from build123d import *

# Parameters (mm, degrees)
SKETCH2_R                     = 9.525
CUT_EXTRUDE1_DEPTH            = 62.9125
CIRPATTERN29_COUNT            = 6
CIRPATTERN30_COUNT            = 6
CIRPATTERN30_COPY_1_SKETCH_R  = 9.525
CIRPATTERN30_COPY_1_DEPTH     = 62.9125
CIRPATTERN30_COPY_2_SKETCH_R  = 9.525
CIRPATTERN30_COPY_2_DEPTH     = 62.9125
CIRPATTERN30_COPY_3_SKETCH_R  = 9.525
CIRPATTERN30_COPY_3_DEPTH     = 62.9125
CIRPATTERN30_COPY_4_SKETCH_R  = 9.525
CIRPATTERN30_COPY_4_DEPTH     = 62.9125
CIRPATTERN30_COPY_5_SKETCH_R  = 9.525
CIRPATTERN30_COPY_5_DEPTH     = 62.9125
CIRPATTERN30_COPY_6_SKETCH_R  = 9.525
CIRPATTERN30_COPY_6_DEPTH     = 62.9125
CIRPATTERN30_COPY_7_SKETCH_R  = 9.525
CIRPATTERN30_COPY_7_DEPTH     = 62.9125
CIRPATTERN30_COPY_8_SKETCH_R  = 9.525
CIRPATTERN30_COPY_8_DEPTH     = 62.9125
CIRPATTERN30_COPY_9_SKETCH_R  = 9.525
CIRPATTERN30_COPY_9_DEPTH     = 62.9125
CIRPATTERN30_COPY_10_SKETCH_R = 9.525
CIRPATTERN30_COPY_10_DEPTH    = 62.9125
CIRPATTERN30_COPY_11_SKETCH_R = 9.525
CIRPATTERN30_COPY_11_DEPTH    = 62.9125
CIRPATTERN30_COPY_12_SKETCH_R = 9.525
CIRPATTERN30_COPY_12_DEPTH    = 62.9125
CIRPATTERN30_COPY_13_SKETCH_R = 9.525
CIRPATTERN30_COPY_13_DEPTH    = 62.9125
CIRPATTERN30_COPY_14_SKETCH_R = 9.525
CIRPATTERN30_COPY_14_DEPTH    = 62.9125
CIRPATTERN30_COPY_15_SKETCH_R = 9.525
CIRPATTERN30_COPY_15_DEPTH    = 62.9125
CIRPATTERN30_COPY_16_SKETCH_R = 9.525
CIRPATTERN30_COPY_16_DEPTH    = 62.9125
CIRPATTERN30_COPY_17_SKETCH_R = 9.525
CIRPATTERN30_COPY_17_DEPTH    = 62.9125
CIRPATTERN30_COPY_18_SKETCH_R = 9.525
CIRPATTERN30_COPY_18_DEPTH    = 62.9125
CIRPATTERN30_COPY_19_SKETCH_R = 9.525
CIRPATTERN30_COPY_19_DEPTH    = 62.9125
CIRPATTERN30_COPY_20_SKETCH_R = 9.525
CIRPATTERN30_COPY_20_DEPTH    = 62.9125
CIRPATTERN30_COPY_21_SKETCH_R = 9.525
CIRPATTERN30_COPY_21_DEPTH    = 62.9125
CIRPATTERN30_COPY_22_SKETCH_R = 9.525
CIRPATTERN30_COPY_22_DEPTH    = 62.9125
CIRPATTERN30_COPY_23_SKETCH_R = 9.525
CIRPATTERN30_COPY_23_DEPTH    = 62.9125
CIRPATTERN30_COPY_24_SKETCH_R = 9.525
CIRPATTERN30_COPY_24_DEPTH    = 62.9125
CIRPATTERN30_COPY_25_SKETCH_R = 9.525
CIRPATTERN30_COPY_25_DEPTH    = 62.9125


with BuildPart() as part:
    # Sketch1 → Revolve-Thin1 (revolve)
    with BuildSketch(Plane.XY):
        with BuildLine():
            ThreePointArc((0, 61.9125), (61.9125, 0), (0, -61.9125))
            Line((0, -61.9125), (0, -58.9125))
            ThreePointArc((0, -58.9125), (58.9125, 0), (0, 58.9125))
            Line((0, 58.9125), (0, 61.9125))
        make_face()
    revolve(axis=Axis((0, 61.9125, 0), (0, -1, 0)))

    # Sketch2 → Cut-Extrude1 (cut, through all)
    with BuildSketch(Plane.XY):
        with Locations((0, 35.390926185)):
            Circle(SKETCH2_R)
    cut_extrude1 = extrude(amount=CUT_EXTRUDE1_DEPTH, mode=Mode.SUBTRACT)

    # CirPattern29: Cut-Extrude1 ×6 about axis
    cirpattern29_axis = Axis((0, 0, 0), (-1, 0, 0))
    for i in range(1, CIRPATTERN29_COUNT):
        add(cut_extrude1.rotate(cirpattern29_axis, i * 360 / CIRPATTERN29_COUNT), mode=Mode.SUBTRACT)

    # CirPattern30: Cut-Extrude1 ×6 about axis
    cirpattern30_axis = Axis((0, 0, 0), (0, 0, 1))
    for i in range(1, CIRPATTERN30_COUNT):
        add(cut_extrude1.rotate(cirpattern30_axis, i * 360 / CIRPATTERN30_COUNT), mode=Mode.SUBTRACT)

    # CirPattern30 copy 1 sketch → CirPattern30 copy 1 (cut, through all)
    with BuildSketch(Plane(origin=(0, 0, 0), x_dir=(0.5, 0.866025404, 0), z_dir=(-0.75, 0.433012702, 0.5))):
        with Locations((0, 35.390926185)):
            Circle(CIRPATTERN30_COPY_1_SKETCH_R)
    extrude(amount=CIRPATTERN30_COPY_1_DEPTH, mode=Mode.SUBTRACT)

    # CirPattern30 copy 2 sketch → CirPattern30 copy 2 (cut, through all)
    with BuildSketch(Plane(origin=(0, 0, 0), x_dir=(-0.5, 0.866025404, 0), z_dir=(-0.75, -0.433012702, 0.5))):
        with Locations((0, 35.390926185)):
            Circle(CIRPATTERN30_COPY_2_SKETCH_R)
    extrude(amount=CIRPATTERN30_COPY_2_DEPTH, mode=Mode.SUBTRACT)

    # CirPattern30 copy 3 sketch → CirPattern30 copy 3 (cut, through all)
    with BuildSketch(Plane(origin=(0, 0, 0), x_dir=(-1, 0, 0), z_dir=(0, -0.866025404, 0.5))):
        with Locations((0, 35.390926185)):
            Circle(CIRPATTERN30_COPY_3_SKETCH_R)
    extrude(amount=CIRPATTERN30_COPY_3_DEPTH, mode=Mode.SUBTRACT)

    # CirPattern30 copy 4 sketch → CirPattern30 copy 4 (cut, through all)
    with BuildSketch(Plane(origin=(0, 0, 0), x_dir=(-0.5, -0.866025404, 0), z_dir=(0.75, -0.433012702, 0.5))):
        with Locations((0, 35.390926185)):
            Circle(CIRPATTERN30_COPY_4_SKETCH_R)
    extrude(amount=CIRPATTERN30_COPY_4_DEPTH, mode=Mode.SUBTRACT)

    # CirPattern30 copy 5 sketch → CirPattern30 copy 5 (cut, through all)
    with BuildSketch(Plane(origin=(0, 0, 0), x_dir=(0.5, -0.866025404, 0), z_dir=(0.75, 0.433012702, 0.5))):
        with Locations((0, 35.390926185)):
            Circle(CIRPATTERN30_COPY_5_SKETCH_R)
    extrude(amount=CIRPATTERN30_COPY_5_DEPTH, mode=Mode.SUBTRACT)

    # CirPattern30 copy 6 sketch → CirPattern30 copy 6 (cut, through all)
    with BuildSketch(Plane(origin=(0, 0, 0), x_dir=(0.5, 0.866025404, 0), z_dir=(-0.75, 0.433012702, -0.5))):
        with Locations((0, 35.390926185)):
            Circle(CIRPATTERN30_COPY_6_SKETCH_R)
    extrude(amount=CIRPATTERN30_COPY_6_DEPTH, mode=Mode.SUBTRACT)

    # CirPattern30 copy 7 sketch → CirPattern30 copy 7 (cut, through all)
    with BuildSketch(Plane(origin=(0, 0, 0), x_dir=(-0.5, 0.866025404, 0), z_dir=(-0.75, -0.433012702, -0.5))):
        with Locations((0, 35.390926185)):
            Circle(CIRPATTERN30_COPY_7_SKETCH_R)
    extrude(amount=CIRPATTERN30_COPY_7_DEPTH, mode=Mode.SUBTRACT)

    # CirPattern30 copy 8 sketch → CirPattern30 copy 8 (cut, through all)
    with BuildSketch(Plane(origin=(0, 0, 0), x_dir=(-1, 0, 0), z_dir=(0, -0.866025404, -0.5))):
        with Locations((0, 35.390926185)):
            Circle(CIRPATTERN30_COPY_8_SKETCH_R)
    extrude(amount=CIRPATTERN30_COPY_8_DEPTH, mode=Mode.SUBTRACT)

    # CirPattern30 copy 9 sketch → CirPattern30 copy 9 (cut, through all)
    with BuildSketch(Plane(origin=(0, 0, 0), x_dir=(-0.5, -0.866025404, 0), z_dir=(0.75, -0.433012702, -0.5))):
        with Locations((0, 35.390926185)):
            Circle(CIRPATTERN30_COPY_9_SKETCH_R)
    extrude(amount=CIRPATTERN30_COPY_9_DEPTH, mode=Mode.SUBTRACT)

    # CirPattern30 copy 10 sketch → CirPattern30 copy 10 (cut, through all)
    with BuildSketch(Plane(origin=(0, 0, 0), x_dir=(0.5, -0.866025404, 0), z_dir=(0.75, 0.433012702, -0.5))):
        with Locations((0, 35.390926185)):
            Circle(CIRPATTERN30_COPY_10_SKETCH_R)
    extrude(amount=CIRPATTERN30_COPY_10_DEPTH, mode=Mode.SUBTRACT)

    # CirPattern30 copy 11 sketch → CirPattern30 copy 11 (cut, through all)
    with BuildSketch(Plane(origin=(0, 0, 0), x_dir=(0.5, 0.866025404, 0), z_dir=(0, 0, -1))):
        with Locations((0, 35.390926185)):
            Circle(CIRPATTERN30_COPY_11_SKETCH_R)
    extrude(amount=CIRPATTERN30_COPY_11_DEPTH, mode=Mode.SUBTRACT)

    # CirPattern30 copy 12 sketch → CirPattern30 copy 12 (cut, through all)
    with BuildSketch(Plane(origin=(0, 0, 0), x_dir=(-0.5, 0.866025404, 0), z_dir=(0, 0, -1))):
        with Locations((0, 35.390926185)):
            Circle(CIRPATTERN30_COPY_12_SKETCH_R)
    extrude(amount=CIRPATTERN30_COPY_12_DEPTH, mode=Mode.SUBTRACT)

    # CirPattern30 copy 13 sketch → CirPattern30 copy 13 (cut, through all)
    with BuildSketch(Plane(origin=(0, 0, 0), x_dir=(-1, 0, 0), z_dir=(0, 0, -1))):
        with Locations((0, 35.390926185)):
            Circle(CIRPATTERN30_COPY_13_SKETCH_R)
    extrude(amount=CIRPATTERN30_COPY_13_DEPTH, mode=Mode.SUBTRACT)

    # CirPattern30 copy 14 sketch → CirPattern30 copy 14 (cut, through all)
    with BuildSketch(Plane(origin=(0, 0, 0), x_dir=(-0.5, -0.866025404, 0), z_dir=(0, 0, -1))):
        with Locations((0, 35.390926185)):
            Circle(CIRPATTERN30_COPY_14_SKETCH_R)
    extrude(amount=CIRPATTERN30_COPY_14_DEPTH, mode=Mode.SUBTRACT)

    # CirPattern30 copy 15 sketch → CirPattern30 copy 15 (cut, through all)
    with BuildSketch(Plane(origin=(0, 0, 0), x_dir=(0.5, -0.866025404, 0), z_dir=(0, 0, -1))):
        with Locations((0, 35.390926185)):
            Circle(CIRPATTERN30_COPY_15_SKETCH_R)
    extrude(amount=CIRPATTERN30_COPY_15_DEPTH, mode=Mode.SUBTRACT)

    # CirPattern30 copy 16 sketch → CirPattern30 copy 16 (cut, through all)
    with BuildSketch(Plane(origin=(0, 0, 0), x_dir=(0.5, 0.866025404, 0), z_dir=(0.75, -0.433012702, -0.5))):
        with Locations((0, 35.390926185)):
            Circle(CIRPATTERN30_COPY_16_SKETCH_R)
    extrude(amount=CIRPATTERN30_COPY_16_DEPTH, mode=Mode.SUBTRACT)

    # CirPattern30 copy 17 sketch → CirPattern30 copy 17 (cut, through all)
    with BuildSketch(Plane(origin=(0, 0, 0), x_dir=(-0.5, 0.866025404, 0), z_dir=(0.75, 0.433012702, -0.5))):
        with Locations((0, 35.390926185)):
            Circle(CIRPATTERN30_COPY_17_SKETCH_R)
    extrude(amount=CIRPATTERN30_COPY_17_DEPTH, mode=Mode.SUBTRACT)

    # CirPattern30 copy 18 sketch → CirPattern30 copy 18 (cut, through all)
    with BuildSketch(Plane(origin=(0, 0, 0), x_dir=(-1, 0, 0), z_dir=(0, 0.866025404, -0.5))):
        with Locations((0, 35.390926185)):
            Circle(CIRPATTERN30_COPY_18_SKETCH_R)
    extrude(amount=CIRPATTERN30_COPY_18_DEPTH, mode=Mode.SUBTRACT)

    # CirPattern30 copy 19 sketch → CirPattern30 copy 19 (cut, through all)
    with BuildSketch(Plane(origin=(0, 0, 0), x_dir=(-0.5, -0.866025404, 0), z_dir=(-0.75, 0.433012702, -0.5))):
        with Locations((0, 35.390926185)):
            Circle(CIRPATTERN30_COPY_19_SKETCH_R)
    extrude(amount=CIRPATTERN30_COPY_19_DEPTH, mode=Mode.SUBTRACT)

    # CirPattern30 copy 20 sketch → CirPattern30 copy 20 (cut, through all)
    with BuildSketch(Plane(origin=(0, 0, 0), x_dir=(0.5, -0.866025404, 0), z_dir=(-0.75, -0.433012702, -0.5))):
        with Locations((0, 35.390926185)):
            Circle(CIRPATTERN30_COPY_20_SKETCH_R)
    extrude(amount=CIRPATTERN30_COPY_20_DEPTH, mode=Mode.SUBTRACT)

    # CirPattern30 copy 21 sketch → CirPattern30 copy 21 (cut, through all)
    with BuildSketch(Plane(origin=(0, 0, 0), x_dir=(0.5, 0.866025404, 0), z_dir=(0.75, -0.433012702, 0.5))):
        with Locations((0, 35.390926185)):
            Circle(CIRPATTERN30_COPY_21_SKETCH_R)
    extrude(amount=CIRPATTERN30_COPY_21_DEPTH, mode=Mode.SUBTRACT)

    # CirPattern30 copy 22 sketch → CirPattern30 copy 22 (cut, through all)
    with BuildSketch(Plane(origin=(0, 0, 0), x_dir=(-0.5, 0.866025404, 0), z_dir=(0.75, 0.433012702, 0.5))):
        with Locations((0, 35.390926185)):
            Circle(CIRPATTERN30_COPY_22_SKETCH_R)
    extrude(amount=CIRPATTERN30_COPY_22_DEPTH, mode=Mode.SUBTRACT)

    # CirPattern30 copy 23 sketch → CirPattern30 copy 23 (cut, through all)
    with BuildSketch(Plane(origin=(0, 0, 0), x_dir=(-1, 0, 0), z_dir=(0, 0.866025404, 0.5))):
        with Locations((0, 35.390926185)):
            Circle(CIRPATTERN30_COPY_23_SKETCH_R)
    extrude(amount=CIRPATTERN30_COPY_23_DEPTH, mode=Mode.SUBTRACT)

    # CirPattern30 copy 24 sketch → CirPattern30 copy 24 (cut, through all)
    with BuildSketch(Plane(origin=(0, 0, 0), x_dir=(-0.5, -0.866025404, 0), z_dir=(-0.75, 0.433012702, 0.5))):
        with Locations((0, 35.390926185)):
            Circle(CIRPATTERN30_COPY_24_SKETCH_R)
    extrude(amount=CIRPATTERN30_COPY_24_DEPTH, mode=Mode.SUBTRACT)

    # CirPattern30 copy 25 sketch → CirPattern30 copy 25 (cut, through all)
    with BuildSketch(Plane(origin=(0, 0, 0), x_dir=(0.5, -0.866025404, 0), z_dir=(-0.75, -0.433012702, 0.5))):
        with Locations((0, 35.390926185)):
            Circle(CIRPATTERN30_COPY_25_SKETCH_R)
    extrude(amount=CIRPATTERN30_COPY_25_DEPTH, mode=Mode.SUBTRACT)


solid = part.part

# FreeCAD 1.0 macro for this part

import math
import FreeCAD as App
import Part
import Sketcher
Q = App.Units.Quantity

doc = App.newDocument("Part")
body = doc.addObject("PartDesign::Body", "Body")

# Sketch on XY plane
sketch1 = body.newObject("Sketcher::SketchObject", "Sketch")
sketch1.AttachmentSupport = (doc.getObject("XY_Plane"), [""])
sketch1.MapMode = "FlatFace"
sketch1.addGeometry([
    Part.ArcOfCircle(Part.Circle(App.Vector(0, 0, 0), App.Vector(0, 0, 1), 61.9125), math.radians(-90), math.radians(90)),
    Part.LineSegment(App.Vector(0, 61.9125, 0), App.Vector(0, 58.9125, 0)),
    Part.ArcOfCircle(Part.Circle(App.Vector(0, 0, 0), App.Vector(0, 0, 1), 58.9125), math.radians(-90), math.radians(90)),
    Part.LineSegment(App.Vector(0, -58.9125, 0), App.Vector(0, -61.9125, 0)),
], False)
sketch1.addConstraint([
    Sketcher.Constraint("Coincident", 0, 2, 1, 1),
    Sketcher.Constraint("Coincident", 1, 2, 2, 2),
    Sketcher.Constraint("Coincident", 2, 1, 3, 1),
    Sketcher.Constraint("Coincident", 3, 2, 0, 1),
    Sketcher.Constraint("Vertical", 1),
    Sketcher.Constraint("Vertical", 3),
    Sketcher.Constraint("Coincident", 0, 3, -1, 1),
    Sketcher.Constraint("Coincident", 2, 3, -1, 1),
    Sketcher.Constraint("PointOnObject", 0, 2, -2),
    Sketcher.Constraint("PointOnObject", 2, 1, -2),
    Sketcher.Constraint("Radius", 0, Q("2.4375 in")),
    Sketcher.Constraint("Radius", 2, Q("58.9125 mm")),
])
revolution = body.newObject("PartDesign::Revolution", "Revolution")
revolution.Profile = sketch1
revolution.ReferenceAxis = (sketch1, ["V_Axis"])
revolution.Angle = 360

# Sketch on XY plane
sketch2 = body.newObject("Sketcher::SketchObject", "Sketch001")
sketch2.AttachmentSupport = (doc.getObject("XY_Plane"), [""])
sketch2.MapMode = "FlatFace"
sketch2.addGeometry(Part.Circle(App.Vector(0, 35.390926, 0), App.Vector(0, 0, 1), 9.525), False)
sketch2.addConstraint([
    Sketcher.Constraint("PointOnObject", 0, 3, -2),
    Sketcher.Constraint("Diameter", 0, Q("0.75 in")),
    Sketcher.Constraint("DistanceY", -1, 1, 0, 3, Q("35.390926 mm")),
])
pocket1 = body.newObject("PartDesign::Pocket", "Pocket")
pocket1.Profile = sketch2
pocket1.Type = "ThroughAll"
pocket1.Reversed = True
doc.recompute()

polarpattern = body.newObject("PartDesign::PolarPattern", "PolarPattern")
polarpattern.Originals = [pocket1]
polarpattern.Axis = (doc.getObject("X_Axis"), [""])
polarpattern.Angle = 360
polarpattern.Occurrences = 6
body.Tip = polarpattern
doc.recompute()

polarpattern2 = body.newObject("PartDesign::PolarPattern", "PolarPattern001")
polarpattern2.Originals = [pocket1]
polarpattern2.Axis = (doc.getObject("Z_Axis"), [""])
polarpattern2.Angle = 360
polarpattern2.Occurrences = 6
body.Tip = polarpattern2

# Sketch on an angled plane
sketch3 = body.newObject("Sketcher::SketchObject", "Sketch002")
sketch3.Placement = App.Placement(App.Vector(0, 0, 0), App.Rotation(App.Vector(0.5, 0.866025404, 0), App.Vector(-0.433012702, 0.25, -0.866025404), App.Vector(-0.75, 0.433012702, 0.5), "ZXY"))
sketch3.addGeometry(Part.Circle(App.Vector(0, 35.390926, 0), App.Vector(0, 0, 1), 9.525), False)
sketch3.addConstraint([
    Sketcher.Constraint("PointOnObject", 0, 3, -2),
    Sketcher.Constraint("Diameter", 0, Q("0.75 in")),
    Sketcher.Constraint("DistanceY", -1, 1, 0, 3, Q("35.390926 mm")),
])
pocket2 = body.newObject("PartDesign::Pocket", "Pocket001")
pocket2.Profile = sketch3
pocket2.Type = "ThroughAll"
pocket2.Reversed = True

# Sketch on an angled plane
sketch4 = body.newObject("Sketcher::SketchObject", "Sketch003")
sketch4.Placement = App.Placement(App.Vector(0, 0, 0), App.Rotation(App.Vector(-0.5, 0.866025404, 0), App.Vector(-0.433012702, -0.25, -0.866025404), App.Vector(-0.75, -0.433012702, 0.5), "ZXY"))
sketch4.addGeometry(Part.Circle(App.Vector(0, 35.390926, 0), App.Vector(0, 0, 1), 9.525), False)
sketch4.addConstraint([
    Sketcher.Constraint("PointOnObject", 0, 3, -2),
    Sketcher.Constraint("Diameter", 0, Q("0.75 in")),
    Sketcher.Constraint("DistanceY", -1, 1, 0, 3, Q("35.390926 mm")),
])
pocket3 = body.newObject("PartDesign::Pocket", "Pocket002")
pocket3.Profile = sketch4
pocket3.Type = "ThroughAll"
pocket3.Reversed = True

# Sketch on an angled plane
sketch5 = body.newObject("Sketcher::SketchObject", "Sketch004")
sketch5.Placement = App.Placement(App.Vector(0, 0, 0), App.Rotation(App.Vector(-1, 0, 0), App.Vector(0, -0.5, -0.866025404), App.Vector(0, -0.866025404, 0.5), "ZXY"))
sketch5.addGeometry(Part.Circle(App.Vector(0, 35.390926, 0), App.Vector(0, 0, 1), 9.525), False)
sketch5.addConstraint([
    Sketcher.Constraint("PointOnObject", 0, 3, -2),
    Sketcher.Constraint("Diameter", 0, Q("0.75 in")),
    Sketcher.Constraint("DistanceY", -1, 1, 0, 3, Q("35.390926 mm")),
])
pocket4 = body.newObject("PartDesign::Pocket", "Pocket003")
pocket4.Profile = sketch5
pocket4.Type = "ThroughAll"
pocket4.Reversed = True

# Sketch on an angled plane
sketch6 = body.newObject("Sketcher::SketchObject", "Sketch005")
sketch6.Placement = App.Placement(App.Vector(0, 0, 0), App.Rotation(App.Vector(-0.5, -0.866025404, 0), App.Vector(0.433012702, -0.25, -0.866025404), App.Vector(0.75, -0.433012702, 0.5), "ZXY"))
sketch6.addGeometry(Part.Circle(App.Vector(0, 35.390926, 0), App.Vector(0, 0, 1), 9.525), False)
sketch6.addConstraint([
    Sketcher.Constraint("PointOnObject", 0, 3, -2),
    Sketcher.Constraint("Diameter", 0, Q("0.75 in")),
    Sketcher.Constraint("DistanceY", -1, 1, 0, 3, Q("35.390926 mm")),
])
pocket5 = body.newObject("PartDesign::Pocket", "Pocket004")
pocket5.Profile = sketch6
pocket5.Type = "ThroughAll"
pocket5.Reversed = True

# Sketch on an angled plane
sketch7 = body.newObject("Sketcher::SketchObject", "Sketch006")
sketch7.Placement = App.Placement(App.Vector(0, 0, 0), App.Rotation(App.Vector(0.5, -0.866025404, 0), App.Vector(0.433012702, 0.25, -0.866025404), App.Vector(0.75, 0.433012702, 0.5), "ZXY"))
sketch7.addGeometry(Part.Circle(App.Vector(0, 35.390926, 0), App.Vector(0, 0, 1), 9.525), False)
sketch7.addConstraint([
    Sketcher.Constraint("PointOnObject", 0, 3, -2),
    Sketcher.Constraint("Diameter", 0, Q("0.75 in")),
    Sketcher.Constraint("DistanceY", -1, 1, 0, 3, Q("35.390926 mm")),
])
pocket6 = body.newObject("PartDesign::Pocket", "Pocket005")
pocket6.Profile = sketch7
pocket6.Type = "ThroughAll"
pocket6.Reversed = True

# Sketch on an angled plane
sketch8 = body.newObject("Sketcher::SketchObject", "Sketch007")
sketch8.Placement = App.Placement(App.Vector(0, 0, 0), App.Rotation(App.Vector(0.5, 0.866025404, 0), App.Vector(0.433012702, -0.25, -0.866025404), App.Vector(-0.75, 0.433012702, -0.5), "ZXY"))
sketch8.addGeometry(Part.Circle(App.Vector(0, 35.390926, 0), App.Vector(0, 0, 1), 9.525), False)
sketch8.addConstraint([
    Sketcher.Constraint("PointOnObject", 0, 3, -2),
    Sketcher.Constraint("Diameter", 0, Q("0.75 in")),
    Sketcher.Constraint("DistanceY", -1, 1, 0, 3, Q("35.390926 mm")),
])
pocket7 = body.newObject("PartDesign::Pocket", "Pocket006")
pocket7.Profile = sketch8
pocket7.Type = "ThroughAll"
pocket7.Reversed = True

# Sketch on an angled plane
sketch9 = body.newObject("Sketcher::SketchObject", "Sketch008")
sketch9.Placement = App.Placement(App.Vector(0, 0, 0), App.Rotation(App.Vector(-0.5, 0.866025404, 0), App.Vector(0.433012702, 0.25, -0.866025404), App.Vector(-0.75, -0.433012702, -0.5), "ZXY"))
sketch9.addGeometry(Part.Circle(App.Vector(0, 35.390926, 0), App.Vector(0, 0, 1), 9.525), False)
sketch9.addConstraint([
    Sketcher.Constraint("PointOnObject", 0, 3, -2),
    Sketcher.Constraint("Diameter", 0, Q("0.75 in")),
    Sketcher.Constraint("DistanceY", -1, 1, 0, 3, Q("35.390926 mm")),
])
pocket8 = body.newObject("PartDesign::Pocket", "Pocket007")
pocket8.Profile = sketch9
pocket8.Type = "ThroughAll"
pocket8.Reversed = True

# Sketch on an angled plane
sketch10 = body.newObject("Sketcher::SketchObject", "Sketch009")
sketch10.Placement = App.Placement(App.Vector(0, 0, 0), App.Rotation(App.Vector(-1, 0, 0), App.Vector(0, 0.5, -0.866025404), App.Vector(0, -0.866025404, -0.5), "ZXY"))
sketch10.addGeometry(Part.Circle(App.Vector(0, 35.390926, 0), App.Vector(0, 0, 1), 9.525), False)
sketch10.addConstraint([
    Sketcher.Constraint("PointOnObject", 0, 3, -2),
    Sketcher.Constraint("Diameter", 0, Q("0.75 in")),
    Sketcher.Constraint("DistanceY", -1, 1, 0, 3, Q("35.390926 mm")),
])
pocket9 = body.newObject("PartDesign::Pocket", "Pocket008")
pocket9.Profile = sketch10
pocket9.Type = "ThroughAll"
pocket9.Reversed = True

# Sketch on an angled plane
sketch11 = body.newObject("Sketcher::SketchObject", "Sketch010")
sketch11.Placement = App.Placement(App.Vector(0, 0, 0), App.Rotation(App.Vector(-0.5, -0.866025404, 0), App.Vector(-0.433012702, 0.25, -0.866025404), App.Vector(0.75, -0.433012702, -0.5), "ZXY"))
sketch11.addGeometry(Part.Circle(App.Vector(0, 35.390926, 0), App.Vector(0, 0, 1), 9.525), False)
sketch11.addConstraint([
    Sketcher.Constraint("PointOnObject", 0, 3, -2),
    Sketcher.Constraint("Diameter", 0, Q("0.75 in")),
    Sketcher.Constraint("DistanceY", -1, 1, 0, 3, Q("35.390926 mm")),
])
pocket10 = body.newObject("PartDesign::Pocket", "Pocket009")
pocket10.Profile = sketch11
pocket10.Type = "ThroughAll"
pocket10.Reversed = True

# Sketch on an angled plane
sketch12 = body.newObject("Sketcher::SketchObject", "Sketch011")
sketch12.Placement = App.Placement(App.Vector(0, 0, 0), App.Rotation(App.Vector(0.5, -0.866025404, 0), App.Vector(-0.433012702, -0.25, -0.866025404), App.Vector(0.75, 0.433012702, -0.5), "ZXY"))
sketch12.addGeometry(Part.Circle(App.Vector(0, 35.390926, 0), App.Vector(0, 0, 1), 9.525), False)
sketch12.addConstraint([
    Sketcher.Constraint("PointOnObject", 0, 3, -2),
    Sketcher.Constraint("Diameter", 0, Q("0.75 in")),
    Sketcher.Constraint("DistanceY", -1, 1, 0, 3, Q("35.390926 mm")),
])
pocket11 = body.newObject("PartDesign::Pocket", "Pocket010")
pocket11.Profile = sketch12
pocket11.Type = "ThroughAll"
pocket11.Reversed = True

# Sketch on XY plane
sketch13 = body.newObject("Sketcher::SketchObject", "Sketch012")
sketch13.AttachmentSupport = (doc.getObject("XY_Plane"), [""])
sketch13.MapMode = "FlatFace"
sketch13.addGeometry(Part.Circle(App.Vector(30.649441, -17.695463, 0), App.Vector(0, 0, 1), 9.525), False)
sketch13.addConstraint([
    Sketcher.Constraint("Diameter", 0, Q("0.75 in")),
    Sketcher.Constraint("DistanceX", -1, 1, 0, 3, Q("30.649441 mm")),
    Sketcher.Constraint("DistanceY", 0, 3, -1, 1, Q("17.695463 mm")),
])
pocket12 = body.newObject("PartDesign::Pocket", "Pocket011")
pocket12.Profile = sketch13
pocket12.Type = "ThroughAll"

# Sketch on XY plane
sketch14 = body.newObject("Sketcher::SketchObject", "Sketch013")
sketch14.AttachmentSupport = (doc.getObject("XY_Plane"), [""])
sketch14.MapMode = "FlatFace"
sketch14.addGeometry(Part.Circle(App.Vector(30.649441, 17.695463, 0), App.Vector(0, 0, 1), 9.525), False)
sketch14.addConstraint([
    Sketcher.Constraint("Diameter", 0, Q("0.75 in")),
    Sketcher.Constraint("DistanceX", -1, 1, 0, 3, Q("30.649441 mm")),
    Sketcher.Constraint("DistanceY", -1, 1, 0, 3, Q("17.695463 mm")),
])
pocket13 = body.newObject("PartDesign::Pocket", "Pocket012")
pocket13.Profile = sketch14
pocket13.Type = "ThroughAll"

# Sketch on XY plane
sketch15 = body.newObject("Sketcher::SketchObject", "Sketch014")
sketch15.AttachmentSupport = (doc.getObject("XY_Plane"), [""])
sketch15.MapMode = "FlatFace"
sketch15.addGeometry(Part.Circle(App.Vector(0, 35.390926, 0), App.Vector(0, 0, 1), 9.525), False)
sketch15.addConstraint([
    Sketcher.Constraint("PointOnObject", 0, 3, -2),
    Sketcher.Constraint("Diameter", 0, Q("0.75 in")),
    Sketcher.Constraint("DistanceY", -1, 1, 0, 3, Q("35.390926 mm")),
])
pocket14 = body.newObject("PartDesign::Pocket", "Pocket013")
pocket14.Profile = sketch15
pocket14.Type = "ThroughAll"

# Sketch on XY plane
sketch16 = body.newObject("Sketcher::SketchObject", "Sketch015")
sketch16.AttachmentSupport = (doc.getObject("XY_Plane"), [""])
sketch16.MapMode = "FlatFace"
sketch16.addGeometry(Part.Circle(App.Vector(-30.649441, 17.695463, 0), App.Vector(0, 0, 1), 9.525), False)
sketch16.addConstraint([
    Sketcher.Constraint("Diameter", 0, Q("0.75 in")),
    Sketcher.Constraint("DistanceX", 0, 3, -1, 1, Q("30.649441 mm")),
    Sketcher.Constraint("DistanceY", -1, 1, 0, 3, Q("17.695463 mm")),
])
pocket15 = body.newObject("PartDesign::Pocket", "Pocket014")
pocket15.Profile = sketch16
pocket15.Type = "ThroughAll"

# Sketch on XY plane
sketch17 = body.newObject("Sketcher::SketchObject", "Sketch016")
sketch17.AttachmentSupport = (doc.getObject("XY_Plane"), [""])
sketch17.MapMode = "FlatFace"
sketch17.addGeometry(Part.Circle(App.Vector(-30.649441, -17.695463, 0), App.Vector(0, 0, 1), 9.525), False)
sketch17.addConstraint([
    Sketcher.Constraint("Diameter", 0, Q("0.75 in")),
    Sketcher.Constraint("DistanceX", 0, 3, -1, 1, Q("30.649441 mm")),
    Sketcher.Constraint("DistanceY", 0, 3, -1, 1, Q("17.695463 mm")),
])
pocket16 = body.newObject("PartDesign::Pocket", "Pocket015")
pocket16.Profile = sketch17
pocket16.Type = "ThroughAll"

# Sketch on an angled plane
sketch18 = body.newObject("Sketcher::SketchObject", "Sketch017")
sketch18.Placement = App.Placement(App.Vector(0, 0, 0), App.Rotation(App.Vector(0.5, 0.866025404, 0), App.Vector(0.433012702, -0.25, 0.866025404), App.Vector(0.75, -0.433012702, -0.5), "ZXY"))
sketch18.addGeometry(Part.Circle(App.Vector(0, 35.390926, 0), App.Vector(0, 0, 1), 9.525), False)
sketch18.addConstraint([
    Sketcher.Constraint("PointOnObject", 0, 3, -2),
    Sketcher.Constraint("Diameter", 0, Q("0.75 in")),
    Sketcher.Constraint("DistanceY", -1, 1, 0, 3, Q("35.390926 mm")),
])
pocket17 = body.newObject("PartDesign::Pocket", "Pocket016")
pocket17.Profile = sketch18
pocket17.Type = "ThroughAll"
pocket17.Reversed = True

# Sketch on an angled plane
sketch19 = body.newObject("Sketcher::SketchObject", "Sketch018")
sketch19.Placement = App.Placement(App.Vector(0, 0, 0), App.Rotation(App.Vector(-0.5, 0.866025404, 0), App.Vector(0.433012702, 0.25, 0.866025404), App.Vector(0.75, 0.433012702, -0.5), "ZXY"))
sketch19.addGeometry(Part.Circle(App.Vector(0, 35.390926, 0), App.Vector(0, 0, 1), 9.525), False)
sketch19.addConstraint([
    Sketcher.Constraint("PointOnObject", 0, 3, -2),
    Sketcher.Constraint("Diameter", 0, Q("0.75 in")),
    Sketcher.Constraint("DistanceY", -1, 1, 0, 3, Q("35.390926 mm")),
])
pocket18 = body.newObject("PartDesign::Pocket", "Pocket017")
pocket18.Profile = sketch19
pocket18.Type = "ThroughAll"
pocket18.Reversed = True

# Sketch on an angled plane
sketch20 = body.newObject("Sketcher::SketchObject", "Sketch019")
sketch20.Placement = App.Placement(App.Vector(0, 0, 0), App.Rotation(App.Vector(-1, 0, 0), App.Vector(0, 0.5, 0.866025404), App.Vector(0, 0.866025404, -0.5), "ZXY"))
sketch20.addGeometry(Part.Circle(App.Vector(0, 35.390926, 0), App.Vector(0, 0, 1), 9.525), False)
sketch20.addConstraint([
    Sketcher.Constraint("PointOnObject", 0, 3, -2),
    Sketcher.Constraint("Diameter", 0, Q("0.75 in")),
    Sketcher.Constraint("DistanceY", -1, 1, 0, 3, Q("35.390926 mm")),
])
pocket19 = body.newObject("PartDesign::Pocket", "Pocket018")
pocket19.Profile = sketch20
pocket19.Type = "ThroughAll"
pocket19.Reversed = True

# Sketch on an angled plane
sketch21 = body.newObject("Sketcher::SketchObject", "Sketch020")
sketch21.Placement = App.Placement(App.Vector(0, 0, 0), App.Rotation(App.Vector(-0.5, -0.866025404, 0), App.Vector(-0.433012702, 0.25, 0.866025404), App.Vector(-0.75, 0.433012702, -0.5), "ZXY"))
sketch21.addGeometry(Part.Circle(App.Vector(0, 35.390926, 0), App.Vector(0, 0, 1), 9.525), False)
sketch21.addConstraint([
    Sketcher.Constraint("PointOnObject", 0, 3, -2),
    Sketcher.Constraint("Diameter", 0, Q("0.75 in")),
    Sketcher.Constraint("DistanceY", -1, 1, 0, 3, Q("35.390926 mm")),
])
pocket20 = body.newObject("PartDesign::Pocket", "Pocket019")
pocket20.Profile = sketch21
pocket20.Type = "ThroughAll"
pocket20.Reversed = True

# Sketch on an angled plane
sketch22 = body.newObject("Sketcher::SketchObject", "Sketch021")
sketch22.Placement = App.Placement(App.Vector(0, 0, 0), App.Rotation(App.Vector(0.5, -0.866025404, 0), App.Vector(-0.433012702, -0.25, 0.866025404), App.Vector(-0.75, -0.433012702, -0.5), "ZXY"))
sketch22.addGeometry(Part.Circle(App.Vector(0, 35.390926, 0), App.Vector(0, 0, 1), 9.525), False)
sketch22.addConstraint([
    Sketcher.Constraint("PointOnObject", 0, 3, -2),
    Sketcher.Constraint("Diameter", 0, Q("0.75 in")),
    Sketcher.Constraint("DistanceY", -1, 1, 0, 3, Q("35.390926 mm")),
])
pocket21 = body.newObject("PartDesign::Pocket", "Pocket020")
pocket21.Profile = sketch22
pocket21.Type = "ThroughAll"
pocket21.Reversed = True

# Sketch on an angled plane
sketch23 = body.newObject("Sketcher::SketchObject", "Sketch022")
sketch23.Placement = App.Placement(App.Vector(0, 0, 0), App.Rotation(App.Vector(0.5, 0.866025404, 0), App.Vector(-0.433012702, 0.25, 0.866025404), App.Vector(0.75, -0.433012702, 0.5), "ZXY"))
sketch23.addGeometry(Part.Circle(App.Vector(0, 35.390926, 0), App.Vector(0, 0, 1), 9.525), False)
sketch23.addConstraint([
    Sketcher.Constraint("PointOnObject", 0, 3, -2),
    Sketcher.Constraint("Diameter", 0, Q("0.75 in")),
    Sketcher.Constraint("DistanceY", -1, 1, 0, 3, Q("35.390926 mm")),
])
pocket22 = body.newObject("PartDesign::Pocket", "Pocket021")
pocket22.Profile = sketch23
pocket22.Type = "ThroughAll"
pocket22.Reversed = True

# Sketch on an angled plane
sketch24 = body.newObject("Sketcher::SketchObject", "Sketch023")
sketch24.Placement = App.Placement(App.Vector(0, 0, 0), App.Rotation(App.Vector(-0.5, 0.866025404, 0), App.Vector(-0.433012702, -0.25, 0.866025404), App.Vector(0.75, 0.433012702, 0.5), "ZXY"))
sketch24.addGeometry(Part.Circle(App.Vector(0, 35.390926, 0), App.Vector(0, 0, 1), 9.525), False)
sketch24.addConstraint([
    Sketcher.Constraint("PointOnObject", 0, 3, -2),
    Sketcher.Constraint("Diameter", 0, Q("0.75 in")),
    Sketcher.Constraint("DistanceY", -1, 1, 0, 3, Q("35.390926 mm")),
])
pocket23 = body.newObject("PartDesign::Pocket", "Pocket022")
pocket23.Profile = sketch24
pocket23.Type = "ThroughAll"
pocket23.Reversed = True

# Sketch on an angled plane
sketch25 = body.newObject("Sketcher::SketchObject", "Sketch024")
sketch25.Placement = App.Placement(App.Vector(0, 0, 0), App.Rotation(App.Vector(-1, 0, 0), App.Vector(0, -0.5, 0.866025404), App.Vector(0, 0.866025404, 0.5), "ZXY"))
sketch25.addGeometry(Part.Circle(App.Vector(0, 35.390926, 0), App.Vector(0, 0, 1), 9.525), False)
sketch25.addConstraint([
    Sketcher.Constraint("PointOnObject", 0, 3, -2),
    Sketcher.Constraint("Diameter", 0, Q("0.75 in")),
    Sketcher.Constraint("DistanceY", -1, 1, 0, 3, Q("35.390926 mm")),
])
pocket24 = body.newObject("PartDesign::Pocket", "Pocket023")
pocket24.Profile = sketch25
pocket24.Type = "ThroughAll"
pocket24.Reversed = True

# Sketch on an angled plane
sketch26 = body.newObject("Sketcher::SketchObject", "Sketch025")
sketch26.Placement = App.Placement(App.Vector(0, 0, 0), App.Rotation(App.Vector(-0.5, -0.866025404, 0), App.Vector(0.433012702, -0.25, 0.866025404), App.Vector(-0.75, 0.433012702, 0.5), "ZXY"))
sketch26.addGeometry(Part.Circle(App.Vector(0, 35.390926, 0), App.Vector(0, 0, 1), 9.525), False)
sketch26.addConstraint([
    Sketcher.Constraint("PointOnObject", 0, 3, -2),
    Sketcher.Constraint("Diameter", 0, Q("0.75 in")),
    Sketcher.Constraint("DistanceY", -1, 1, 0, 3, Q("35.390926 mm")),
])
pocket25 = body.newObject("PartDesign::Pocket", "Pocket024")
pocket25.Profile = sketch26
pocket25.Type = "ThroughAll"
pocket25.Reversed = True

# Sketch on an angled plane
sketch27 = body.newObject("Sketcher::SketchObject", "Sketch026")
sketch27.Placement = App.Placement(App.Vector(0, 0, 0), App.Rotation(App.Vector(0.5, -0.866025404, 0), App.Vector(0.433012702, 0.25, 0.866025404), App.Vector(-0.75, -0.433012702, 0.5), "ZXY"))
sketch27.addGeometry(Part.Circle(App.Vector(0, 35.390926, 0), App.Vector(0, 0, 1), 9.525), False)
sketch27.addConstraint([
    Sketcher.Constraint("PointOnObject", 0, 3, -2),
    Sketcher.Constraint("Diameter", 0, Q("0.75 in")),
    Sketcher.Constraint("DistanceY", -1, 1, 0, 3, Q("35.390926 mm")),
])
pocket26 = body.newObject("PartDesign::Pocket", "Pocket025")
pocket26.Profile = sketch27
pocket26.Type = "ThroughAll"
pocket26.Reversed = True

doc.recompute()
